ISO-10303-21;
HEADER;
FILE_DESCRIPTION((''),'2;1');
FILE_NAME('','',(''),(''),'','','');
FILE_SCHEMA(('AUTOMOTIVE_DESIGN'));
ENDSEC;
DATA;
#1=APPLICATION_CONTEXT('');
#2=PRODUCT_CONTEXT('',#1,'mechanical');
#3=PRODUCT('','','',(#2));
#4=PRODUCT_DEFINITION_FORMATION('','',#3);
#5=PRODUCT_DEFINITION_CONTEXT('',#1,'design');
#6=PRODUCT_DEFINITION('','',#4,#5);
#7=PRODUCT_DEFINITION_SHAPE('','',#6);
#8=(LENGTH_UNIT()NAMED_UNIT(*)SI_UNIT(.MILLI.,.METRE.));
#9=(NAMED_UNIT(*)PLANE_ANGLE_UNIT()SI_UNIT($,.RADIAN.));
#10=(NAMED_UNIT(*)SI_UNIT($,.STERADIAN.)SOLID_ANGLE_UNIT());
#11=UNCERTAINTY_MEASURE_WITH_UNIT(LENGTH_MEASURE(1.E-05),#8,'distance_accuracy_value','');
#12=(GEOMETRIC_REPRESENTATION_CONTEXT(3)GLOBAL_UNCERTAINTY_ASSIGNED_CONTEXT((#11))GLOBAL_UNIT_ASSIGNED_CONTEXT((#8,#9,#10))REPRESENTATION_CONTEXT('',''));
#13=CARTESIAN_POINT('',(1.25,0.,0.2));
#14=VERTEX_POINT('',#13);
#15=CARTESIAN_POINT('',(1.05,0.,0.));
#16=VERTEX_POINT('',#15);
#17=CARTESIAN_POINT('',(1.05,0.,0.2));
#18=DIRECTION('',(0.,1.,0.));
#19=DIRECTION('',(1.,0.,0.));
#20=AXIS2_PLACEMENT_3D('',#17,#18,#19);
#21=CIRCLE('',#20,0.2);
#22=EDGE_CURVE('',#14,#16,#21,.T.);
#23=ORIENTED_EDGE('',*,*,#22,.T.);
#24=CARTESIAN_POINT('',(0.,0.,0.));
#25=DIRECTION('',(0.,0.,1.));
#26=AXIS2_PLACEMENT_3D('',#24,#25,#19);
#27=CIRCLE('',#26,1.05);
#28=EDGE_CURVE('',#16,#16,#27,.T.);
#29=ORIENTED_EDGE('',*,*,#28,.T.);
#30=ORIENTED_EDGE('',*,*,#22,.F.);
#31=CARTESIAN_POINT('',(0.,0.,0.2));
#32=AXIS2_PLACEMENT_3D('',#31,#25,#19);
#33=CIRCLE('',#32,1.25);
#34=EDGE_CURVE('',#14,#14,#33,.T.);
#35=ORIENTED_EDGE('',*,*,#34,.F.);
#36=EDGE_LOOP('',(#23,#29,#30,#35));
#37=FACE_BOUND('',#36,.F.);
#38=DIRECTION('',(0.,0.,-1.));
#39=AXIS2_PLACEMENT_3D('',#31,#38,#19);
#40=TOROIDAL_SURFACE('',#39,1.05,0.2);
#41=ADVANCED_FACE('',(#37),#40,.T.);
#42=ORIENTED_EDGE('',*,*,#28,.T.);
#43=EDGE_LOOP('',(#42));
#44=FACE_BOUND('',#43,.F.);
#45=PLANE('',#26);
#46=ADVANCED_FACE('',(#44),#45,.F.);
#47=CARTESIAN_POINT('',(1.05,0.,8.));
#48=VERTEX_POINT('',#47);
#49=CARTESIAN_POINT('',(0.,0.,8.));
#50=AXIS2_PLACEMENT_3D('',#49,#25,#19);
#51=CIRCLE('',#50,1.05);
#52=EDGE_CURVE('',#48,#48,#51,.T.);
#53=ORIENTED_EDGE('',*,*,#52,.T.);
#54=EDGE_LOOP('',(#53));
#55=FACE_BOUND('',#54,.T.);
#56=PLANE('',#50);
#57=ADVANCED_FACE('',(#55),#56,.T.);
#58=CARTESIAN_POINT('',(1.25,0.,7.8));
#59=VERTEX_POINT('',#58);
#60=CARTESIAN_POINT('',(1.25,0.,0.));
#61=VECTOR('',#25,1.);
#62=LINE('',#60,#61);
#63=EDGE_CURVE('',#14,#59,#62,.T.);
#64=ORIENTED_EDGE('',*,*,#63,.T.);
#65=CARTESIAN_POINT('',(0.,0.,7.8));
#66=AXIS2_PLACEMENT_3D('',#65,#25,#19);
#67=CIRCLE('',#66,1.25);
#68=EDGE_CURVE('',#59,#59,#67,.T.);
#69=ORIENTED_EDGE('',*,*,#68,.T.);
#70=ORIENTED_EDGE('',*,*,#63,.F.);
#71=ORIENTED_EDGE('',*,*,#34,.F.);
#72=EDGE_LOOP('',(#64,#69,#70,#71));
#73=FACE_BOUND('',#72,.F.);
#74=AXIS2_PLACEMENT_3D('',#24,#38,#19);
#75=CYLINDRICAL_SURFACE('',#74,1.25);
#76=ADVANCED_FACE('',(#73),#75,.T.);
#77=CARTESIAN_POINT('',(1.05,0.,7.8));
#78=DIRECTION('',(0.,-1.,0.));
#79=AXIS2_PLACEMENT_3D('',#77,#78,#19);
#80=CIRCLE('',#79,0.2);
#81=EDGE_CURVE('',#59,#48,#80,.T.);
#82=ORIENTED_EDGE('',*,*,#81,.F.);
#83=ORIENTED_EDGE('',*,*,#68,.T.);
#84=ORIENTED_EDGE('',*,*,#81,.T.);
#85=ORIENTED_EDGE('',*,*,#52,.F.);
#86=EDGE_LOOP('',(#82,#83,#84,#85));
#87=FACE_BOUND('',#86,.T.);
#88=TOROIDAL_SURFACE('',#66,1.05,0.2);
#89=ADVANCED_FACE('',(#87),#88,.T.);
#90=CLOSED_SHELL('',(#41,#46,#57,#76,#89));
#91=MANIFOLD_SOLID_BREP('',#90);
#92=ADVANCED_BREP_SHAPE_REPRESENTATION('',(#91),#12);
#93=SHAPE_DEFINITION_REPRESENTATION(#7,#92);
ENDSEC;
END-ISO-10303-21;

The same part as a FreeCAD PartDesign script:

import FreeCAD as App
import Part
import Sketcher
from FreeCAD import Vector


def edges_at(feature, points):
    """Names of the edges that pass closest to the given points."""
    edges = feature.Shape.Edges
    near = lambda p: min(range(len(edges)), key=lambda i: edges[i].distToShape(Part.Vertex(*p))[0])
    return sorted({f"Edge{near(p) + 1}" for p in points})

doc = App.newDocument("Part")
body = doc.addObject("PartDesign::Body", "Body")

sketch1 = body.newObject("Sketcher::SketchObject", "Sketch")
sketch1.AttachmentSupport = (doc.getObject("XY_Plane"), [""])
sketch1.MapMode = "FlatFace"
sketch1.addGeometry(Part.Circle(Vector(0, 0, 0), Vector(0, 0, 1), 1.25), False)
sketch1.addConstraint(Sketcher.Constraint("Coincident", 0, 3, -1, 1))
sketch1.addConstraint(Sketcher.Constraint("Diameter", 0, 2.5))
pad1 = body.newObject("PartDesign::Pad", "Pad")
pad1.Profile = sketch1
pad1.Length = 8
doc.recompute()

fillet = body.newObject("PartDesign::Fillet", "Fillet")
fillet.Base = (pad1, edges_at(pad1, [(-1.25, 0, 8), (-1.25, 0, 0)]))
fillet.Radius = 0.2

doc.recompute()
